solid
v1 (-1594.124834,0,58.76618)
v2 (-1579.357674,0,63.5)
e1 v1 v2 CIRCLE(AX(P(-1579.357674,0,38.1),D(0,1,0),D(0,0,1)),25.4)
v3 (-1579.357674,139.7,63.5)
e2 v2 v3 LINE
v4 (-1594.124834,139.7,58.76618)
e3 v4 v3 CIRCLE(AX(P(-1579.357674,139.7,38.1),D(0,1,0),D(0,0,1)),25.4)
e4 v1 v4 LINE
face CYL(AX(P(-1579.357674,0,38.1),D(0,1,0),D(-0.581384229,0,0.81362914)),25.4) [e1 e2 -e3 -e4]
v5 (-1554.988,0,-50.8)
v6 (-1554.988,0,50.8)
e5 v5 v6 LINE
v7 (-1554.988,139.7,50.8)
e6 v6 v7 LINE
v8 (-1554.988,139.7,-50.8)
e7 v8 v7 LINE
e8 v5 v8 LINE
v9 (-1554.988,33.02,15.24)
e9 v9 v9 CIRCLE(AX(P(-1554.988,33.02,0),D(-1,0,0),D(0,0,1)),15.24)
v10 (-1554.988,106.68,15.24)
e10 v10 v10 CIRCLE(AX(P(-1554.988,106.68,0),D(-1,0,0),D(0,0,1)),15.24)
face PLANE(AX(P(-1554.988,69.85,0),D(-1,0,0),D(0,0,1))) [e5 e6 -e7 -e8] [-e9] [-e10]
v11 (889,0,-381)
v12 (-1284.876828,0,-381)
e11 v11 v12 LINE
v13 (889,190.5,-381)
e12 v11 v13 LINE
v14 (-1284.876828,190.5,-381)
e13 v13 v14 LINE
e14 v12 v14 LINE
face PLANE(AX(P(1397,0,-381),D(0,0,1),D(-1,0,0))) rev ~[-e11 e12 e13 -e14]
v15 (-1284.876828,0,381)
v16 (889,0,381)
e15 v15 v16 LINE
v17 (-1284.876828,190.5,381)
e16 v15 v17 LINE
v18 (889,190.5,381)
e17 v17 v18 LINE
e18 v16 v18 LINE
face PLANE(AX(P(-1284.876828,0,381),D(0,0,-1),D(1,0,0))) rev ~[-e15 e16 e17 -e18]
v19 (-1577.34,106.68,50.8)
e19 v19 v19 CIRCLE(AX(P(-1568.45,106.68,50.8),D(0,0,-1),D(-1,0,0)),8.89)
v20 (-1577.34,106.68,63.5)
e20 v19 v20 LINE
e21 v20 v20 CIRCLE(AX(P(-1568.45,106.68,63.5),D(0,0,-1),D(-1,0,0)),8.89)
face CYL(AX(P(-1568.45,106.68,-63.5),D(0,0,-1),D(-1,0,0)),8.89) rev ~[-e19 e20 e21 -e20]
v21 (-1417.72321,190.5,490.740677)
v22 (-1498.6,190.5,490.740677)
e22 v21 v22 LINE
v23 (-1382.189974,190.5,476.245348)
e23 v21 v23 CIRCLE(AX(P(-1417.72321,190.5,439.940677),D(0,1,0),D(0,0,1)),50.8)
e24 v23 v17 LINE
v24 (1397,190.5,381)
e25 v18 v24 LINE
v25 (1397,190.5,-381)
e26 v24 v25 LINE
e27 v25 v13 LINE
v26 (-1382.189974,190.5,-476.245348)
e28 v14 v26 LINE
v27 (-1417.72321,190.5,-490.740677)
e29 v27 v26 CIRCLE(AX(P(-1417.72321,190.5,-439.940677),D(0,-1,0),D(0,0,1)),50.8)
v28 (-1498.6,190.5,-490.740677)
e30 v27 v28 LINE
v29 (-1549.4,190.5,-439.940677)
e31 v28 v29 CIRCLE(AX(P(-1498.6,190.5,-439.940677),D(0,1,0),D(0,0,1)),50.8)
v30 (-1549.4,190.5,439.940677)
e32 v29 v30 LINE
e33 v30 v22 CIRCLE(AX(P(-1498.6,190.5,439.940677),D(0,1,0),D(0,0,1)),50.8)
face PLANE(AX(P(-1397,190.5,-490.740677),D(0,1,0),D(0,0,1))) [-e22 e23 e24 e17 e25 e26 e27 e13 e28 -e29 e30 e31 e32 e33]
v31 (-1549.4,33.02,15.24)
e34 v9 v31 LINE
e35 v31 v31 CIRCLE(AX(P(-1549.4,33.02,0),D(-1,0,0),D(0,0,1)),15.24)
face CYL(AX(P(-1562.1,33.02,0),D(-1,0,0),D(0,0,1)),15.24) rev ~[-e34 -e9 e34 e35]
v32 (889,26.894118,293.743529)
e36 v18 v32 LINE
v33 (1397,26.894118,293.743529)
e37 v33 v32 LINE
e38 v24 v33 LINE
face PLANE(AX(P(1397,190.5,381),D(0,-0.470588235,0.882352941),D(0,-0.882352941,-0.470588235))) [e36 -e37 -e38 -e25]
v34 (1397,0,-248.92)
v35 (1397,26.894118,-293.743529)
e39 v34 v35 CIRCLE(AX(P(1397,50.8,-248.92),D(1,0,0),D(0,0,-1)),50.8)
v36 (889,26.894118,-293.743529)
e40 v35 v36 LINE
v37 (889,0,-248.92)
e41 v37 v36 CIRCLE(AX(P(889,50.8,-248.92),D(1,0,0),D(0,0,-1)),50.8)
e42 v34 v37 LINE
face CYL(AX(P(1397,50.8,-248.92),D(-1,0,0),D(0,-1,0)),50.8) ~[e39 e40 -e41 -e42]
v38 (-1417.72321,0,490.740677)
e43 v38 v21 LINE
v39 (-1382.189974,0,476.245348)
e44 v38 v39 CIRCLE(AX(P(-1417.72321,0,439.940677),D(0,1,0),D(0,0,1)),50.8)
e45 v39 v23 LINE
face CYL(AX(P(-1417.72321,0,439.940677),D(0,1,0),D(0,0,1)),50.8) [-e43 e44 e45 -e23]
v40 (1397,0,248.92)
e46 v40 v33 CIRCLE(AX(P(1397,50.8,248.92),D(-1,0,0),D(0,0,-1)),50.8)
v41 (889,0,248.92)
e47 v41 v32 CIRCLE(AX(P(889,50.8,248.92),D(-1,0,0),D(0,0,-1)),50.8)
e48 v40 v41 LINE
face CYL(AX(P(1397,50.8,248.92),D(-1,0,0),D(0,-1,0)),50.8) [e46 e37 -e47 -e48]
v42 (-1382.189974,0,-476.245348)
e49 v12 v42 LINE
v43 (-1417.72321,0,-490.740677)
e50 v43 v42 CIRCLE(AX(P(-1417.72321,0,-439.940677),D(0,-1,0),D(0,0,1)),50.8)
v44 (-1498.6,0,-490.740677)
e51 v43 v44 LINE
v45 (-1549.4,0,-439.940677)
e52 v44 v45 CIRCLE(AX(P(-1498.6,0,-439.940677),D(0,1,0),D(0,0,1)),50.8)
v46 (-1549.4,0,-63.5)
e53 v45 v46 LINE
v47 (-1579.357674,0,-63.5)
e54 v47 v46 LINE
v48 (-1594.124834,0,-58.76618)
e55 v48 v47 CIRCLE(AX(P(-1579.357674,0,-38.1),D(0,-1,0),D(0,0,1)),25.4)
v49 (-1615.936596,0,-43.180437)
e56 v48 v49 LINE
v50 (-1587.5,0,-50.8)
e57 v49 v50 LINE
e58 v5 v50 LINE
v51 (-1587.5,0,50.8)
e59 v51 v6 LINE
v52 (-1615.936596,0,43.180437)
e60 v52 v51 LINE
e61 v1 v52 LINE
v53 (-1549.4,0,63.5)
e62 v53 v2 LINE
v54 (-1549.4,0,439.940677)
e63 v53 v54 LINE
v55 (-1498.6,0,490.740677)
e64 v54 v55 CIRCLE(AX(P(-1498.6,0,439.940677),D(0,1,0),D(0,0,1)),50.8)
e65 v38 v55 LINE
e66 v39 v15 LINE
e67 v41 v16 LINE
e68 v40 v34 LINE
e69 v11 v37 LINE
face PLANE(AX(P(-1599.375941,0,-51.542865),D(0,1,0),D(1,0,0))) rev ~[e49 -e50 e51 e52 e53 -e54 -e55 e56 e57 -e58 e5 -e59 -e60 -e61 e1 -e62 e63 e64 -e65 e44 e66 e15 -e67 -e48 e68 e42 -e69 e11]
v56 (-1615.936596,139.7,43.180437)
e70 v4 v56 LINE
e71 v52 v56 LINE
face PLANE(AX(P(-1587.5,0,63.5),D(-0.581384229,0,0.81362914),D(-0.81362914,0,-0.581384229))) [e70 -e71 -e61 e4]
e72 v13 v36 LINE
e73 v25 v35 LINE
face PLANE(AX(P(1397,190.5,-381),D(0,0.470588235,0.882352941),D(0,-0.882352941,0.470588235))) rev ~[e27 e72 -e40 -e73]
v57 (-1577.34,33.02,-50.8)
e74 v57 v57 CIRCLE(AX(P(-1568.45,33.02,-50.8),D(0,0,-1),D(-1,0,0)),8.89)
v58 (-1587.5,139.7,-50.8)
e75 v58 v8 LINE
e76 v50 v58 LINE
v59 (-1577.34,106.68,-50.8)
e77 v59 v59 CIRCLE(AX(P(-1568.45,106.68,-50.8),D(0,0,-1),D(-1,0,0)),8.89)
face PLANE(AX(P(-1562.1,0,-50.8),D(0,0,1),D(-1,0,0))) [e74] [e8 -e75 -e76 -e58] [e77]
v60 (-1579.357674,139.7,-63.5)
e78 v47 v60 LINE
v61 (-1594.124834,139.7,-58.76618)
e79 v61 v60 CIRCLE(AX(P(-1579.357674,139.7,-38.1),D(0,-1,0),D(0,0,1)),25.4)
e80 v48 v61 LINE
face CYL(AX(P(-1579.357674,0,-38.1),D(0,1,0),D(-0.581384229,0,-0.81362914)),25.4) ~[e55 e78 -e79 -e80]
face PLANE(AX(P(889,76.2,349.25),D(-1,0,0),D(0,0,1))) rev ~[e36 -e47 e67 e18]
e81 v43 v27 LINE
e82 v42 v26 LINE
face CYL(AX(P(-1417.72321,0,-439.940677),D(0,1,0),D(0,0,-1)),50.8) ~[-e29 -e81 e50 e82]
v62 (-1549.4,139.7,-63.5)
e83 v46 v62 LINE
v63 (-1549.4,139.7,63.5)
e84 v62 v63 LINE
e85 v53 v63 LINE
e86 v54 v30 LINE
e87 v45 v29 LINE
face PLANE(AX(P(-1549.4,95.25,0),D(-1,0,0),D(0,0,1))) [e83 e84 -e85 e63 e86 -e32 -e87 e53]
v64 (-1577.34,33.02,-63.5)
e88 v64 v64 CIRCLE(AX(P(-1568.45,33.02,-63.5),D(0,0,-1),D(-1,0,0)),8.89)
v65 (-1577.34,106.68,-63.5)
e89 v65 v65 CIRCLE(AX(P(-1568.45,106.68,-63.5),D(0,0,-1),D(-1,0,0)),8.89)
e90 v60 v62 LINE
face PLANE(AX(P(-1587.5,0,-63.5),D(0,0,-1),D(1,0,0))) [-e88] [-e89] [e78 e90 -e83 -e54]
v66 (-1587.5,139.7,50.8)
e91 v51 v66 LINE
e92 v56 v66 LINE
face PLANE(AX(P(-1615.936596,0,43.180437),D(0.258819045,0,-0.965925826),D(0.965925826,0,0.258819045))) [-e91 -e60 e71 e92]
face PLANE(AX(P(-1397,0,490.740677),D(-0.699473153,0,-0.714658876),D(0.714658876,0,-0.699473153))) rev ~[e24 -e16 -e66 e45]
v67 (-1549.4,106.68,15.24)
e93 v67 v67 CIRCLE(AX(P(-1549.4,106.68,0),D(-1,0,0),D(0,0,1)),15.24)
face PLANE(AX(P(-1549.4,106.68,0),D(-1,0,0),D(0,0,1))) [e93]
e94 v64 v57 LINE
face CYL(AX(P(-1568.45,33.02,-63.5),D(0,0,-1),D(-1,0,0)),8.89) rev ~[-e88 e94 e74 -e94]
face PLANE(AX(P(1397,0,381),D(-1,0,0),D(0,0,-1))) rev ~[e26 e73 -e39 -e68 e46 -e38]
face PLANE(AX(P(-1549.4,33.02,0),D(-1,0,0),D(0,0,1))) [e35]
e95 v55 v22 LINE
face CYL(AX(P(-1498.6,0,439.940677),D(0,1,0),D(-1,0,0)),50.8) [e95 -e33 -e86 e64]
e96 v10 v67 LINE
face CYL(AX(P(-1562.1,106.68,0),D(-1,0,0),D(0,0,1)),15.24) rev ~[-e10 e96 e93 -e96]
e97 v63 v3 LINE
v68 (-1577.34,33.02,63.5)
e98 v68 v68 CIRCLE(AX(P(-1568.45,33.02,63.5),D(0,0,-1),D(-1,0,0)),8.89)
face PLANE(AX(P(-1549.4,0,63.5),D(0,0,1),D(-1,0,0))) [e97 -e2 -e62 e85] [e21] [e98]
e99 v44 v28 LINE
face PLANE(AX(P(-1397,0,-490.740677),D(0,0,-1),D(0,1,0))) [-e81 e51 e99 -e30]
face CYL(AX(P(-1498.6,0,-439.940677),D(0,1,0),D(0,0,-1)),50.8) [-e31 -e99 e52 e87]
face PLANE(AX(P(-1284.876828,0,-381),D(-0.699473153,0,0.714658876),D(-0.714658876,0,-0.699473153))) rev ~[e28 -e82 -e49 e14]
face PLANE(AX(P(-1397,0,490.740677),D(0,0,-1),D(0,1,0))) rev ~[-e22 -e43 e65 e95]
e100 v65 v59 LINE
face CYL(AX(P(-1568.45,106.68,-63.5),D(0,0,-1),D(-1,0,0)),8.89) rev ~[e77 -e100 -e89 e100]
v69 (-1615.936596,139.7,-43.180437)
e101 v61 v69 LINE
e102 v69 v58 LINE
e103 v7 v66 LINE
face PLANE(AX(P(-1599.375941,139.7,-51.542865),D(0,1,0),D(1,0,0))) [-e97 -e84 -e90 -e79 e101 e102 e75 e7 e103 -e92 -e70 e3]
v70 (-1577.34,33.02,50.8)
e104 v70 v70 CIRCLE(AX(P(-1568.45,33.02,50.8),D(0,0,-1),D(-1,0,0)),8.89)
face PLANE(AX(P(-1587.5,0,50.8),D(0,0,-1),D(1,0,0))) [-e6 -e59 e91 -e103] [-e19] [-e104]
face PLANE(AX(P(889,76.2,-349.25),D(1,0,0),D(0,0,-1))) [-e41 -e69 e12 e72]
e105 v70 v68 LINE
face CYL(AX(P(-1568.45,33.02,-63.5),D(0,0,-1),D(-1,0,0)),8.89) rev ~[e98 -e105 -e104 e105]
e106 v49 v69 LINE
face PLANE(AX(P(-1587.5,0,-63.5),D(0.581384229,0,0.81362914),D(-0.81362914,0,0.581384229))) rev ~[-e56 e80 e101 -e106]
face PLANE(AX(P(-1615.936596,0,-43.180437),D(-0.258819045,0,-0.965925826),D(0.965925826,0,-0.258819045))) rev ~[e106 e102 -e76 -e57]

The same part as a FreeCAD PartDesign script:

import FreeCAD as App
import Part
import Sketcher

V = App.Vector
Q = App.Units.Quantity


def edges_at(feature, points):
    """Names of the edges that pass closest to the given points."""
    edges = feature.Shape.Edges
    near = lambda p: min(range(len(edges)), key=lambda i: edges[i].distToShape(Part.Vertex(*p))[0])
    return sorted({f"Edge{near(p) + 1}" for p in points})


def add_polygon(sketch, points):
    """Adds a closed chain of lines whose ends are joined by coincident constraints."""
    first, n = sketch.GeometryCount, len(points)
    for a, b in zip(points, points[1:] + points[:1]):
        sketch.addGeometry(Part.LineSegment(App.Vector(*a, 0), App.Vector(*b, 0)), False)
    for i in range(n):
        sketch.addConstraint(Sketcher.Constraint("Coincident", first + i, 2, first + (i + 1) % n, 1))

doc = App.newDocument("Part")
body = doc.addObject("PartDesign::Body", "Body")

# Sketch on XZ plane
sketch1 = body.newObject("Sketcher::SketchObject", "Sketch")
sketch1.AttachmentSupport = (doc.getObject("XZ_Plane"), [""])
sketch1.MapMode = "FlatFace"
add_polygon(sketch1, [(-1285, 381), (1397, 381), (1397, -381), (-1285, -381), (-1397, -491), (-1397, 491)])  # lines 0-5
sketch1.addConstraint([
    Sketcher.Constraint("Horizontal", 0),
    Sketcher.Constraint("Vertical", 1),
    Sketcher.Constraint("Horizontal", 2),
    Sketcher.Constraint("Vertical", 4),
    Sketcher.Constraint("Symmetric", 2, 2, 5, 2, -1),
    Sketcher.Constraint("Equal", 3, 5),
    Sketcher.Constraint("DistanceY", 1, 2, 1, 1, Q("30 in")),
    Sketcher.Constraint("DistanceX", -1, 1, 0, 2, Q("55 in")),
    Sketcher.Constraint("DistanceX", 3, 2, -1, 1, Q("55 in")),
    Sketcher.Constraint("DistanceX", 0, 1, 0, 2, Q("2681.876828 mm")),
    Sketcher.Constraint("DistanceY", 4, 1, 4, 2, Q("981.481354 mm")),
])
pad1 = body.newObject("PartDesign::Pad", "Pad")
pad1.Profile = sketch1
pad1.Length = Q("7.5 in")
pad1.Reversed = True

# Sketch on YZ plane
sketch2 = body.newObject("Sketcher::SketchObject", "Sketch001")
sketch2.AttachmentSupport = (doc.getObject("YZ_Plane"), [""])
sketch2.MapMode = "FlatFace"
sketch2.AttachmentOffset = App.Placement(V(0, 0, -55 * 25.4), App.Rotation())
add_polygon(sketch2, [(190, -491), (0, -491), (0, 491), (190, 491)])  # lines 0-3
sketch2.addConstraint([
    Sketcher.Constraint("Horizontal", 0),
    Sketcher.Constraint("Vertical", 1),
    Sketcher.Constraint("Horizontal", 2),
    Sketcher.Constraint("Vertical", 3),
    Sketcher.Constraint("Symmetric", 0, 2, 1, 2, -1, 1),
    Sketcher.Constraint("DistanceX", 0, 2, 0, 1, Q("7.5 in")),
    Sketcher.Constraint("DistanceY", 1, 1, 1, 2, Q("981.481354 mm")),
])
pad2 = body.newObject("PartDesign::Pad", "Pad001")
pad2.Profile = sketch2
pad2.Length = Q("6 in")
pad2.Reversed = True
doc.recompute()

fillet = body.newObject("PartDesign::Fillet", "Fillet")
fillet.Base = (pad2, edges_at(pad2, [
    (-1397, 95.25, 490.741),
    (-1397, 95.25, -490.741),
    (-1549.4, 95.25, -490.741),
    (-1549.4, 95.25, 490.741),
]))
fillet.Radius = Q("2 in")

# Sketch on YZ plane
sketch3 = body.newObject("Sketcher::SketchObject", "Sketch002")
sketch3.AttachmentSupport = (doc.getObject("YZ_Plane"), [""])
sketch3.MapMode = "FlatFace"
sketch3.AttachmentOffset = App.Placement(V(0, 0, 55 * 25.4), App.Rotation())
add_polygon(sketch3, [(0, 279), (190, 381), (0, 381)])  # lines 0-2
add_polygon(sketch3, [(190, -381), (0, -279), (0, -381)])  # lines 3-5
sketch3.addConstraint([
    Sketcher.Constraint("Horizontal", 1),
    Sketcher.Constraint("Vertical", 2),
    Sketcher.Constraint("Vertical", 4),
    Sketcher.Constraint("Horizontal", 5),
    Sketcher.Constraint("Symmetric", 2, 2, 3, 2, -1, 1),
    Sketcher.Constraint("Symmetric", 1, 2, 4, 2, -1),
    Sketcher.Constraint("Vertical", 0, 2, 5, 2),
    Sketcher.Constraint("DistanceY", 2, 2, 2, 1, Q("4 in")),
    Sketcher.Constraint("DistanceX", 1, 2, 1, 1, Q("7.5 in")),
    Sketcher.Constraint("DistanceY", -1, 1, 0, 2, Q("15 in")),
])
pocket1 = body.newObject("PartDesign::Pocket", "Pocket")
pocket1.Profile = sketch3
pocket1.Length = Q("20 in")
doc.recompute()

fillet2 = body.newObject("PartDesign::Fillet", "Fillet001")
fillet2.Base = (pocket1, edges_at(pocket1, [(1143, 0, 279.4), (1143, 0, -279.4)]))
fillet2.Radius = Q("2 in")

# Sketch on XZ plane
sketch4 = body.newObject("Sketcher::SketchObject", "Sketch003")
sketch4.AttachmentSupport = (doc.getObject("XZ_Plane"), [""])
sketch4.MapMode = "FlatFace"
add_polygon(sketch4, [(-1562, 51), (-1562, -51), (-1588, -51), (-1588, -64), (-1549, -64), (-1549, 64), (-1588, 64), (-1588, 51)])  # lines 0-7
sketch4.addConstraint([
    Sketcher.Constraint("Vertical", 0),
    Sketcher.Constraint("Horizontal", 1),
    Sketcher.Constraint("Vertical", 2),
    Sketcher.Constraint("Horizontal", 3),
    Sketcher.Constraint("Vertical", 4),
    Sketcher.Constraint("Horizontal", 5),
    Sketcher.Constraint("Vertical", 6),
    Sketcher.Constraint("Horizontal", 7),
    Sketcher.Constraint("Symmetric", 2, 2, 5, 2, -1),
    Sketcher.Constraint("Equal", 2, 6),
    Sketcher.Constraint("DistanceX", 1, 2, 1, 1, Q("1 in")),
    Sketcher.Constraint("DistanceY", 0, 2, 0, 1, Q("4 in")),
    Sketcher.Constraint("DistanceY", 4, 1, 4, 2, Q("5 in")),
    Sketcher.Constraint("DistanceX", 3, 1, 3, 2, Q("1.5 in")),
    Sketcher.Constraint("DistanceX", 3, 2, -1, 1, Q("61 in")),
])
pad3 = body.newObject("PartDesign::Pad", "Pad002")
pad3.Profile = sketch4
pad3.Length = Q("5.5 in")
pad3.Reversed = True

# Sketch on XZ plane
sketch5 = body.newObject("Sketcher::SketchObject", "Sketch004")
sketch5.AttachmentSupport = (doc.getObject("XZ_Plane"), [""])
sketch5.MapMode = "FlatFace"
add_polygon(sketch5, [(-1588, -64), (-1616, -43), (-1588, -51)])  # lines 0-2
add_polygon(sketch5, [(-1588, 51), (-1616, 43), (-1588, 64)])  # lines 3-5
sketch5.addConstraint([
    Sketcher.Constraint("Vertical", 2),
    Sketcher.Constraint("Vertical", 5),
    Sketcher.Constraint("Symmetric", 0, 2, 3, 2, -1),
    Sketcher.Constraint("Symmetric", 2, 2, 4, 2, -1),
    Sketcher.Constraint("Equal", 2, 5),
    Sketcher.Constraint("DistanceY", 2, 2, 2, 1, Q("0.5 in")),
    Sketcher.Constraint("DistanceY", 1, 2, -1, 1, Q("2 in")),
    Sketcher.Constraint("Angle", 1, Q("-15 deg")),
    Sketcher.Constraint("DistanceX", 1, 2, -1, 1, Q("62.5 in")),
    Sketcher.Constraint("Distance", 1, Q("29.439731 mm")),
])
pad4 = body.newObject("PartDesign::Pad", "Pad003")
pad4.Profile = sketch5
pad4.Length = Q("5.5 in")
pad4.Reversed = True

# Sketch on YZ plane
sketch6 = body.newObject("Sketcher::SketchObject", "Sketch005")
sketch6.AttachmentSupport = (doc.getObject("YZ_Plane"), [""])
sketch6.MapMode = "FlatFace"
sketch6.AttachmentOffset = App.Placement(V(0, 0, -61.5 * 25.4), App.Rotation())
sketch6.addGeometry([
    Part.Circle(V(107, 0, 0), V(0, 0, 1), 15),
    Part.Circle(V(33, 0, 0), V(0, 0, 1), 15),
], False)
sketch6.addConstraint([
    Sketcher.Constraint("Equal", 0, 1),
    Sketcher.Constraint("PointOnObject", 0, 3, -1),
    Sketcher.Constraint("PointOnObject", 1, 3, -1),
    Sketcher.Constraint("Diameter", 0, Q("1.2 in")),
    Sketcher.Constraint("DistanceX", -1, 1, 0, 3, Q("4.2 in")),
    Sketcher.Constraint("DistanceX", -1, 1, 1, 3, Q("1.3 in")),
])
pocket2 = body.newObject("PartDesign::Pocket", "Pocket001")
pocket2.Profile = sketch6
pocket2.Length = Q("0.5 in")
pocket2.Reversed = True

# Sketch on YZ plane
sketch7 = body.newObject("Sketcher::SketchObject", "Sketch006")
sketch7.AttachmentSupport = (doc.getObject("YZ_Plane"), [""])
sketch7.MapMode = "FlatFace"
sketch7.AttachmentOffset = App.Placement(V(0, 0, -61.5 * 25.4), App.Rotation())
add_polygon(sketch7, [(140, -51), (0, -51), (0, 51), (140, 51)])  # lines 0-3
sketch7.addConstraint([
    Sketcher.Constraint("Horizontal", 0),
    Sketcher.Constraint("Vertical", 1),
    Sketcher.Constraint("Horizontal", 2),
    Sketcher.Constraint("Vertical", 3),
    Sketcher.Constraint("Symmetric", 0, 2, 1, 2, -1, 1),
    Sketcher.Constraint("DistanceY", 1, 1, 1, 2, Q("4 in")),
    Sketcher.Constraint("DistanceX", 0, 2, 0, 1, Q("5.5 in")),
])
pocket3 = body.newObject("PartDesign::Pocket", "Pocket002")
pocket3.Profile = sketch7
pocket3.Length = Q("0.28 in")
pocket3.Reversed = True

# Sketch on XY plane
sketch8 = body.newObject("Sketcher::SketchObject", "Sketch007")
sketch8.AttachmentSupport = (doc.getObject("XY_Plane"), [""])
sketch8.MapMode = "FlatFace"
sketch8.AttachmentOffset = App.Placement(V(0, 0, -2.5 * 25.4), App.Rotation())
sketch8.addGeometry([
    Part.Circle(V(-1568, 107, 0), V(0, 0, 1), 9),
    Part.Circle(V(-1568, 33, 0), V(0, 0, 1), 9),
], False)
sketch8.addConstraint([
    Sketcher.Constraint("Equal", 0, 1),
    Sketcher.Constraint("Vertical", 0, 3, 1, 3),
    Sketcher.Constraint("Diameter", 0, Q("0.7 in")),
    Sketcher.Constraint("DistanceY", -1, 1, 0, 3, Q("4.2 in")),
    Sketcher.Constraint("DistanceY", -1, 1, 1, 3, Q("1.3 in")),
    Sketcher.Constraint("DistanceX", 0, 3, -1, 1, Q("61.75 in")),
])
pocket4 = body.newObject("PartDesign::Pocket", "Pocket003")
pocket4.Profile = sketch8
pocket4.Length = Q("7.05 in")
pocket4.Reversed = True
doc.recompute()

fillet3 = body.newObject("PartDesign::Fillet", "Fillet002")
fillet3.Base = (pocket4, edges_at(pocket4, [(-1587.5, 69.85, -63.5), (-1587.5, 69.85, 63.5)]))
fillet3.Radius = Q("1 in")

doc.recompute()
